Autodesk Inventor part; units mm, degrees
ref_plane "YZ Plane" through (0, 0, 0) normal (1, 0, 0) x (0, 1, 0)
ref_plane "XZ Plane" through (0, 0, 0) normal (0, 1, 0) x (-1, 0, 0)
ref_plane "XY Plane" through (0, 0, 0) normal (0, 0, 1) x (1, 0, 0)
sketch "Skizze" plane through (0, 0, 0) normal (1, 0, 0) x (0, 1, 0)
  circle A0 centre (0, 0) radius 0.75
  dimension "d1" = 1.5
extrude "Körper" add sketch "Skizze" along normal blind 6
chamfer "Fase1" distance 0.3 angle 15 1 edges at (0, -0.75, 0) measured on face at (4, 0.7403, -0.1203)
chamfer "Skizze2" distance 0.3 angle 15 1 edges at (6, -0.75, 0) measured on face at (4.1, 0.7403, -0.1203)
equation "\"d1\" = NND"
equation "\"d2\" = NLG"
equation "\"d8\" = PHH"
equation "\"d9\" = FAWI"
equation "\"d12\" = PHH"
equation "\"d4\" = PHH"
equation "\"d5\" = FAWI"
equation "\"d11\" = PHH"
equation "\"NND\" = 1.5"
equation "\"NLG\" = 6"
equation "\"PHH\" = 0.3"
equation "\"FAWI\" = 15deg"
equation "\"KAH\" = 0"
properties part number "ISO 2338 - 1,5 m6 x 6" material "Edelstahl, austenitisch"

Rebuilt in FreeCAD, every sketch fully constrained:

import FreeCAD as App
import Part
import Sketcher

V = App.Vector


def edges_at(feature, points):
    """Names of the edges that pass closest to the given points."""
    edges = feature.Shape.Edges
    near = lambda p: min(range(len(edges)), key=lambda i: edges[i].distToShape(Part.Vertex(*p))[0])
    return sorted({f"Edge{near(p) + 1}" for p in points})

doc = App.newDocument("Part")
params = doc.addObject("Spreadsheet::Sheet", "Params")
for row, (alias, value) in enumerate([
    ("sketch1_diameter", "1.5 mm"),
    ("pad1_length", "6 mm"),
    ("chamfer_size", "0.3 mm"),
    ("chamfer2_size", "0.3 mm"),
], start=1):
    params.set(f"A{row}", alias)
    params.set(f"B{row}", "=" + value)
    params.setAlias(f"B{row}", alias)

body = doc.addObject("PartDesign::Body", "Body")

# Sketch on YZ plane
sketch1 = body.newObject("Sketcher::SketchObject", "Sketch")
sketch1.AttachmentSupport = (doc.getObject("YZ_Plane"), [""])
sketch1.MapMode = "FlatFace"
sketch1.addGeometry(Part.Circle(V(0, 0, 0), V(0, 0, 1), 0.75), False)
sketch1.addConstraint([
    Sketcher.Constraint("Coincident", 0, 3, -1, 1),
    Sketcher.Constraint("Diameter", 0, 1.5),
])
sketch1.setExpression("Constraints[1]", "Params.sketch1_diameter")
pad1 = body.newObject("PartDesign::Pad", "Pad")
pad1.Profile = sketch1
pad1.setExpression("Length", "Params.pad1_length")
doc.recompute()

chamfer = body.newObject("PartDesign::Chamfer", "Chamfer")
chamfer.Base = (pad1, edges_at(pad1, [(0, -0.75, 0)]))
chamfer.ChamferType = "Distance and Angle"
chamfer.setExpression("Size", "Params.chamfer_size")
chamfer.Angle = 15
doc.recompute()

chamfer2 = body.newObject("PartDesign::Chamfer", "Chamfer001")
chamfer2.Base = (chamfer, edges_at(chamfer, [(6, -0.75, 0)]))
chamfer2.ChamferType = "Distance and Angle"
chamfer2.setExpression("Size", "Params.chamfer2_size")
chamfer2.Angle = 15

doc.recompute()
